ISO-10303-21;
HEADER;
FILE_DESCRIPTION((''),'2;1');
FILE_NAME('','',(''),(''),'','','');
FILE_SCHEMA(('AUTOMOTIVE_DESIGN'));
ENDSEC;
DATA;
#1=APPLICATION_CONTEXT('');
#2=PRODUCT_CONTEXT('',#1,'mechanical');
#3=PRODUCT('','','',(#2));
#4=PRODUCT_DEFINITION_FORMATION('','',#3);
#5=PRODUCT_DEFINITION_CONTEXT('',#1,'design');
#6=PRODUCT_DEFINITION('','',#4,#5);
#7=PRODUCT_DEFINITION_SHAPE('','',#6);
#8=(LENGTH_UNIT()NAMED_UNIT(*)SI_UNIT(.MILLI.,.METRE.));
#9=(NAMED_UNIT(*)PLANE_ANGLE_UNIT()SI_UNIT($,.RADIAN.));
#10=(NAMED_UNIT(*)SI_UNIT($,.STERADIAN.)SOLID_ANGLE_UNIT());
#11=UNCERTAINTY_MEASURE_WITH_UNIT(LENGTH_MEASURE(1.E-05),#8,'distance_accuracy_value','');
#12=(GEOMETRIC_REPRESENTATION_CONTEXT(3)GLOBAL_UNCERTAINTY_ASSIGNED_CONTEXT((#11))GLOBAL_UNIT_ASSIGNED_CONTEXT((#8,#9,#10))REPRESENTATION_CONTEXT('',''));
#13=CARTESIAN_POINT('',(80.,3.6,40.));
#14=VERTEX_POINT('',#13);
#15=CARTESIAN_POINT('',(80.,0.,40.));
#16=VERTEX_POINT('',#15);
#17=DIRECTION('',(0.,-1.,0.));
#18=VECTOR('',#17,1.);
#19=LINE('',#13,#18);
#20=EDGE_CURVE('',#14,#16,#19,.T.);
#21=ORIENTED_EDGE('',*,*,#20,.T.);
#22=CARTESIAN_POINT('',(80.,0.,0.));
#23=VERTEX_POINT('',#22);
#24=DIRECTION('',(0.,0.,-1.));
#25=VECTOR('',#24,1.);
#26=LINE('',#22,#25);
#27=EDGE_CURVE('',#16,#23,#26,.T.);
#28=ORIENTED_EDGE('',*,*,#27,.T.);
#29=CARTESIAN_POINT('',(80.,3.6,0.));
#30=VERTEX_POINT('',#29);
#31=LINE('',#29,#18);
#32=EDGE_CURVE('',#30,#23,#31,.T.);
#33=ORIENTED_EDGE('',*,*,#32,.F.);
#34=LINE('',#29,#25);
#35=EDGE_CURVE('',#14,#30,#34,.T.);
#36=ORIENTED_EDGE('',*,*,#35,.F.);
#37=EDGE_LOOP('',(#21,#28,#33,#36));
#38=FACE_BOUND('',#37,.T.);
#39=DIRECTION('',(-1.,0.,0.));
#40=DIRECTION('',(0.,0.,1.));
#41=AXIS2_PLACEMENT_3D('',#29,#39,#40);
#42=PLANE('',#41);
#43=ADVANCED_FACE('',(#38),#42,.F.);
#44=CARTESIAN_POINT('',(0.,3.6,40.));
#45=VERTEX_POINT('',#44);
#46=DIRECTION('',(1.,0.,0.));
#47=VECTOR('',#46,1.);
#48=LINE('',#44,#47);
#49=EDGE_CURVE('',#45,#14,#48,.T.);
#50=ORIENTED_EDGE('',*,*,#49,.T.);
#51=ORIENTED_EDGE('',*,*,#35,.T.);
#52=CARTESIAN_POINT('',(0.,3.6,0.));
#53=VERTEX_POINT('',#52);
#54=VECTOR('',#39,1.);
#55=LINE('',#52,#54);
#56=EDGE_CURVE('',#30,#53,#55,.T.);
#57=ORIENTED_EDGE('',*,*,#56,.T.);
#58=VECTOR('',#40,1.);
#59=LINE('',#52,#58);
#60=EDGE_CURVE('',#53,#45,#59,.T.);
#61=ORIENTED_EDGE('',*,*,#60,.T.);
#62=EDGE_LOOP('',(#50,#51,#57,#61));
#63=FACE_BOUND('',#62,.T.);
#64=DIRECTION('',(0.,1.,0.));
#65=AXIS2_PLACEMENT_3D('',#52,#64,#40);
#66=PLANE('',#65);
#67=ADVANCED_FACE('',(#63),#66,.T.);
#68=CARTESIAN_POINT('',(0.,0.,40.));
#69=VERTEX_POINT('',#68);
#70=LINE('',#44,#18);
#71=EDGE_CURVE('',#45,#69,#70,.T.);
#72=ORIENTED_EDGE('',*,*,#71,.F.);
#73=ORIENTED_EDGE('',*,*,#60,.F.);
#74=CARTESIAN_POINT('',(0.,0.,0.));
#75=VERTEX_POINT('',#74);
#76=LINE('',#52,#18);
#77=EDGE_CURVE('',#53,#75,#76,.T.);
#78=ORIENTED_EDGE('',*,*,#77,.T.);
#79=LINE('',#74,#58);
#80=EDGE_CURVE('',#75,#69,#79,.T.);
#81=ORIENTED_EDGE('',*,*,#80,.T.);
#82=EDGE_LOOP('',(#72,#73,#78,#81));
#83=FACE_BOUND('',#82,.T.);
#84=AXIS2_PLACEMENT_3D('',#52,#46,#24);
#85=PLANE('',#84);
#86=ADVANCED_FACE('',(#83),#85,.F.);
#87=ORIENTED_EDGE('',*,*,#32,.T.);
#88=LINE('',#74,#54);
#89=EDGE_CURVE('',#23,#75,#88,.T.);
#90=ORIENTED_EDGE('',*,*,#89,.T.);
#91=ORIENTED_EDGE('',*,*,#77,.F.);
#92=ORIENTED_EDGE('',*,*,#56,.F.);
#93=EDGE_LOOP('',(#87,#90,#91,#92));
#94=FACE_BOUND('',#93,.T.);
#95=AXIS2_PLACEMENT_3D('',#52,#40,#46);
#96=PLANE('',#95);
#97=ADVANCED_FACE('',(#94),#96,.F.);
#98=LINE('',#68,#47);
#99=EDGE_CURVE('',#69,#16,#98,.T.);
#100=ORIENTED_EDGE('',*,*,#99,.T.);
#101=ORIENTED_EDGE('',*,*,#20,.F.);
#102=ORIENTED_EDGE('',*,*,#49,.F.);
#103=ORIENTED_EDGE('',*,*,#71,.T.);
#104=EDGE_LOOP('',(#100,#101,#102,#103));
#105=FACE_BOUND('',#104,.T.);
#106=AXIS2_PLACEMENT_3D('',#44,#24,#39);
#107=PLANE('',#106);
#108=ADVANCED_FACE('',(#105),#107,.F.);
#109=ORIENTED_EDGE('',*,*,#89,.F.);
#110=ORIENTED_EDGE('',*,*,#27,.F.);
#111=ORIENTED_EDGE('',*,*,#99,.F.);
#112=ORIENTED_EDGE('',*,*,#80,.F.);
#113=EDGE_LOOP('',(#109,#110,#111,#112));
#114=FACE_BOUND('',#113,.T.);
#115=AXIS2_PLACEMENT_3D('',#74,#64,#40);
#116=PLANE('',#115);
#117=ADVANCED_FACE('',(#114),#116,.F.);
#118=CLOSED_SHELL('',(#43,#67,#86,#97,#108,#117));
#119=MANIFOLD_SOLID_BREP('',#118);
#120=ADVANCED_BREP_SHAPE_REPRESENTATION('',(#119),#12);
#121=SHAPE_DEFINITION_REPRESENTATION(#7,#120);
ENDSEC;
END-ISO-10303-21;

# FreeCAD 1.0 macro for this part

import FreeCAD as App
import Part
import Sketcher

V = App.Vector

doc = App.newDocument("Part")
params = doc.addObject("Spreadsheet::Sheet", "Params")
for row, (alias, value) in enumerate([
    ("sketch1_width", "80 mm"),
    ("sketch1_height", "40 mm"),
    ("pad1_length", "3.6 mm"),
], start=1):
    params.set(f"A{row}", alias)
    params.set(f"B{row}", "=" + value)
    params.setAlias(f"B{row}", alias)

body = doc.addObject("PartDesign::Body", "Body")

# Sketch on XZ plane
sketch1 = doc.addObject("Sketcher::SketchObject", "Sketch")
body.addObject(sketch1)
sketch1.AttachmentSupport = (doc.XZ_Plane, [""])
sketch1.MapMode = "FlatFace"
sketch1.addGeometry(Part.LineSegment(V(0, 0, 0), V(0, 40, 0)), False)
sketch1.addGeometry(Part.LineSegment(V(0, 40, 0), V(80, 40, 0)), False)
sketch1.addGeometry(Part.LineSegment(V(80, 40, 0), V(80, 0, 0)), False)
sketch1.addGeometry(Part.LineSegment(V(80, 0, 0), V(0, 0, 0)), False)
sketch1.addConstraint(Sketcher.Constraint("Coincident", 0, 2, 1, 1))
sketch1.addConstraint(Sketcher.Constraint("Coincident", 1, 2, 2, 1))
sketch1.addConstraint(Sketcher.Constraint("Coincident", 2, 2, 3, 1))
sketch1.addConstraint(Sketcher.Constraint("Coincident", 3, 2, 0, 1))
sketch1.addConstraint(Sketcher.Constraint("Vertical", 0))
sketch1.addConstraint(Sketcher.Constraint("Horizontal", 1))
sketch1.addConstraint(Sketcher.Constraint("Vertical", 2))
sketch1.addConstraint(Sketcher.Constraint("Horizontal", 3))
sketch1.addConstraint(Sketcher.Constraint("Coincident", 3, 2, -1, 1))
sketch1.addConstraint(Sketcher.Constraint("DistanceX", 1, 1, 1, 2, 80.0))
sketch1.addConstraint(Sketcher.Constraint("DistanceY", 0, 1, 0, 2, 40.0))
sketch1.setExpression("Constraints[9]", "Params.sketch1_width")
sketch1.setExpression("Constraints[10]", "Params.sketch1_height")
pad1 = doc.addObject("PartDesign::Pad", "Pad")
body.addObject(pad1)
pad1.Profile = sketch1
pad1.setExpression("Length", "Params.pad1_length")
pad1.Reversed = True

doc.recompute()
